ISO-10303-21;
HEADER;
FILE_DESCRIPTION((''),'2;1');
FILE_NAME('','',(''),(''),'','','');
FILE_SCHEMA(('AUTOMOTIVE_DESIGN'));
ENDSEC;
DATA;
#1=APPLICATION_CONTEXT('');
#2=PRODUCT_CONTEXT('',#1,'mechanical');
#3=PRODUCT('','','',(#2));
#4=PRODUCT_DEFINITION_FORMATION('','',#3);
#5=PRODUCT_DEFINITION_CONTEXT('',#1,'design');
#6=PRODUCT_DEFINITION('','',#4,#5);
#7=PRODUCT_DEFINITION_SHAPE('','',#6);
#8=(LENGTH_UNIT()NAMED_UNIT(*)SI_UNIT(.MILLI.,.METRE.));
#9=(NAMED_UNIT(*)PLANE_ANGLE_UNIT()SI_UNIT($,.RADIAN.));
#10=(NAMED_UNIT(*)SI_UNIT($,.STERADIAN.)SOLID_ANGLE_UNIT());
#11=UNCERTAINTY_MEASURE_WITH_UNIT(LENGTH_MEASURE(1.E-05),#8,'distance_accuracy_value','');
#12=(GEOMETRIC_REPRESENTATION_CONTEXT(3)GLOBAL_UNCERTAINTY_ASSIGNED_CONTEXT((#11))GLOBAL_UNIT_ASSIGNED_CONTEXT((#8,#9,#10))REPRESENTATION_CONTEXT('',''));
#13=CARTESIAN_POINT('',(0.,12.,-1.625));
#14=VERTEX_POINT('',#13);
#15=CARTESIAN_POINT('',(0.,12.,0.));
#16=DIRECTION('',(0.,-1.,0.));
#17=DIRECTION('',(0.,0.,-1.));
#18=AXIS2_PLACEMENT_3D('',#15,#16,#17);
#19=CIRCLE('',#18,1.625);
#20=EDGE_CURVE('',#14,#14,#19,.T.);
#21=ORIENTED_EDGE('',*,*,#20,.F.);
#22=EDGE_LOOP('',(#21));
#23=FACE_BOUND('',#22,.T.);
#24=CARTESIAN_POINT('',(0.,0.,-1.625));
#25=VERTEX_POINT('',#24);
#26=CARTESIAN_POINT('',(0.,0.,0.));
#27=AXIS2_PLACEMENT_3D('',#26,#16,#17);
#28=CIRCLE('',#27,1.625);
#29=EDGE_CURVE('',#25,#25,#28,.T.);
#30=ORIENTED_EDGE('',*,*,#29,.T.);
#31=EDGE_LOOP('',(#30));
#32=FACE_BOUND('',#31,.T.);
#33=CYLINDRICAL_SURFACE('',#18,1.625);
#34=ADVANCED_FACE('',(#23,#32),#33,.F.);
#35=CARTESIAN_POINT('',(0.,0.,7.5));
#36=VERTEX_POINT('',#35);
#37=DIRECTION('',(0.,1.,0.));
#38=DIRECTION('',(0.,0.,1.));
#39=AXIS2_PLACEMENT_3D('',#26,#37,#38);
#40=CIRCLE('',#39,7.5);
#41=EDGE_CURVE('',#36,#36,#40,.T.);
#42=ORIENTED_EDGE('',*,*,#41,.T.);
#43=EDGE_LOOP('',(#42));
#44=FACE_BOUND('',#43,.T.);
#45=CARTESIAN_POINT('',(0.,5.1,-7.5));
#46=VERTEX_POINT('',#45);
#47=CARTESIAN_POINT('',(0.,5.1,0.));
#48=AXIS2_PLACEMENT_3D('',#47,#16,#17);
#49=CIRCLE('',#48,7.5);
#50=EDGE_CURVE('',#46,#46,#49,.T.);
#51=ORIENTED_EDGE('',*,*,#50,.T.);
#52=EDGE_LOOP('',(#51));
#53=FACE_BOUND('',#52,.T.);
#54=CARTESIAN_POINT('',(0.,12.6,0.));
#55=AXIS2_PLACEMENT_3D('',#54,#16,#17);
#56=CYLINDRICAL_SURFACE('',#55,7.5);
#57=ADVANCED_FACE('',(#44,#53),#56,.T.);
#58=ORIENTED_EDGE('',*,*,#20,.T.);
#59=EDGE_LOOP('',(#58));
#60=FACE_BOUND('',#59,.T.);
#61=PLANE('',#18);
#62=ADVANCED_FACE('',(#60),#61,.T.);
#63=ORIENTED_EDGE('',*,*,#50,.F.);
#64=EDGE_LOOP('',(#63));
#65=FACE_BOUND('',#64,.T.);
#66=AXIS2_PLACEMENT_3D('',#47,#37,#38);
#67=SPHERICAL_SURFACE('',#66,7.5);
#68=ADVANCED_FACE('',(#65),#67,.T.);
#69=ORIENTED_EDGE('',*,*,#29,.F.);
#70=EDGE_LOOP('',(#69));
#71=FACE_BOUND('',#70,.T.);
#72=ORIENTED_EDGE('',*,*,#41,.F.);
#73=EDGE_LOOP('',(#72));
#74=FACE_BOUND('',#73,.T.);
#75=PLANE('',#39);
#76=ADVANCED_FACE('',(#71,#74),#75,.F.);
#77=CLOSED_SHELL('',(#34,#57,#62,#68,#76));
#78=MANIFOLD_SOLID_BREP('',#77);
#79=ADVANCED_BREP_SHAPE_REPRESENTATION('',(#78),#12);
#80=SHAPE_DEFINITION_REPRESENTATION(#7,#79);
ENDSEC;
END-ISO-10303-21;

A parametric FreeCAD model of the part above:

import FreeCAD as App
import Part
import Sketcher


def edges_at(feature, points):
    """Names of the edges that pass closest to the given points."""
    edges = feature.Shape.Edges
    near = lambda p: min(range(len(edges)), key=lambda i: edges[i].distToShape(Part.Vertex(*p))[0])
    return sorted({f"Edge{near(p) + 1}" for p in points})

doc = App.newDocument("Part")
body = doc.addObject("PartDesign::Body", "Body")

sketch1 = body.newObject("Sketcher::SketchObject", "Sketch")
sketch1.AttachmentSupport = (doc.getObject("XZ_Plane"), [""])
sketch1.MapMode = "FlatFace"
sketch1.addGeometry(Part.Circle(App.Vector(0, 0, 0), App.Vector(0, 0, 1), 8), False)
sketch1.addConstraint([
    Sketcher.Constraint("Coincident", 0, 3, -1, 1),
    Sketcher.Constraint("Diameter", 0, 15.0),
])
pad1 = body.newObject("PartDesign::Pad", "Pad")
pad1.Profile = sketch1
pad1.Length = 12.6
pad1.Reversed = True
doc.recompute()

fillet = body.newObject("PartDesign::Fillet", "Fillet")
fillet.Base = (pad1, edges_at(pad1, [(-7.5, 12.6, 0)]))
fillet.Radius = 7.5

sketch2 = body.newObject("Sketcher::SketchObject", "Sketch001")
sketch2.AttachmentSupport = (doc.getObject("XZ_Plane"), [""])
sketch2.MapMode = "FlatFace"
sketch2.addGeometry(Part.Circle(App.Vector(0, 0, 0), App.Vector(0, 0, 1), 1.6), False)
sketch2.addConstraint([
    Sketcher.Constraint("Coincident", 0, 3, -1, 1),
    Sketcher.Constraint("Diameter", 0, 3.25),
])
pocket1 = body.newObject("PartDesign::Pocket", "Pocket")
pocket1.Profile = sketch2
pocket1.Length = 12

doc.recompute()
